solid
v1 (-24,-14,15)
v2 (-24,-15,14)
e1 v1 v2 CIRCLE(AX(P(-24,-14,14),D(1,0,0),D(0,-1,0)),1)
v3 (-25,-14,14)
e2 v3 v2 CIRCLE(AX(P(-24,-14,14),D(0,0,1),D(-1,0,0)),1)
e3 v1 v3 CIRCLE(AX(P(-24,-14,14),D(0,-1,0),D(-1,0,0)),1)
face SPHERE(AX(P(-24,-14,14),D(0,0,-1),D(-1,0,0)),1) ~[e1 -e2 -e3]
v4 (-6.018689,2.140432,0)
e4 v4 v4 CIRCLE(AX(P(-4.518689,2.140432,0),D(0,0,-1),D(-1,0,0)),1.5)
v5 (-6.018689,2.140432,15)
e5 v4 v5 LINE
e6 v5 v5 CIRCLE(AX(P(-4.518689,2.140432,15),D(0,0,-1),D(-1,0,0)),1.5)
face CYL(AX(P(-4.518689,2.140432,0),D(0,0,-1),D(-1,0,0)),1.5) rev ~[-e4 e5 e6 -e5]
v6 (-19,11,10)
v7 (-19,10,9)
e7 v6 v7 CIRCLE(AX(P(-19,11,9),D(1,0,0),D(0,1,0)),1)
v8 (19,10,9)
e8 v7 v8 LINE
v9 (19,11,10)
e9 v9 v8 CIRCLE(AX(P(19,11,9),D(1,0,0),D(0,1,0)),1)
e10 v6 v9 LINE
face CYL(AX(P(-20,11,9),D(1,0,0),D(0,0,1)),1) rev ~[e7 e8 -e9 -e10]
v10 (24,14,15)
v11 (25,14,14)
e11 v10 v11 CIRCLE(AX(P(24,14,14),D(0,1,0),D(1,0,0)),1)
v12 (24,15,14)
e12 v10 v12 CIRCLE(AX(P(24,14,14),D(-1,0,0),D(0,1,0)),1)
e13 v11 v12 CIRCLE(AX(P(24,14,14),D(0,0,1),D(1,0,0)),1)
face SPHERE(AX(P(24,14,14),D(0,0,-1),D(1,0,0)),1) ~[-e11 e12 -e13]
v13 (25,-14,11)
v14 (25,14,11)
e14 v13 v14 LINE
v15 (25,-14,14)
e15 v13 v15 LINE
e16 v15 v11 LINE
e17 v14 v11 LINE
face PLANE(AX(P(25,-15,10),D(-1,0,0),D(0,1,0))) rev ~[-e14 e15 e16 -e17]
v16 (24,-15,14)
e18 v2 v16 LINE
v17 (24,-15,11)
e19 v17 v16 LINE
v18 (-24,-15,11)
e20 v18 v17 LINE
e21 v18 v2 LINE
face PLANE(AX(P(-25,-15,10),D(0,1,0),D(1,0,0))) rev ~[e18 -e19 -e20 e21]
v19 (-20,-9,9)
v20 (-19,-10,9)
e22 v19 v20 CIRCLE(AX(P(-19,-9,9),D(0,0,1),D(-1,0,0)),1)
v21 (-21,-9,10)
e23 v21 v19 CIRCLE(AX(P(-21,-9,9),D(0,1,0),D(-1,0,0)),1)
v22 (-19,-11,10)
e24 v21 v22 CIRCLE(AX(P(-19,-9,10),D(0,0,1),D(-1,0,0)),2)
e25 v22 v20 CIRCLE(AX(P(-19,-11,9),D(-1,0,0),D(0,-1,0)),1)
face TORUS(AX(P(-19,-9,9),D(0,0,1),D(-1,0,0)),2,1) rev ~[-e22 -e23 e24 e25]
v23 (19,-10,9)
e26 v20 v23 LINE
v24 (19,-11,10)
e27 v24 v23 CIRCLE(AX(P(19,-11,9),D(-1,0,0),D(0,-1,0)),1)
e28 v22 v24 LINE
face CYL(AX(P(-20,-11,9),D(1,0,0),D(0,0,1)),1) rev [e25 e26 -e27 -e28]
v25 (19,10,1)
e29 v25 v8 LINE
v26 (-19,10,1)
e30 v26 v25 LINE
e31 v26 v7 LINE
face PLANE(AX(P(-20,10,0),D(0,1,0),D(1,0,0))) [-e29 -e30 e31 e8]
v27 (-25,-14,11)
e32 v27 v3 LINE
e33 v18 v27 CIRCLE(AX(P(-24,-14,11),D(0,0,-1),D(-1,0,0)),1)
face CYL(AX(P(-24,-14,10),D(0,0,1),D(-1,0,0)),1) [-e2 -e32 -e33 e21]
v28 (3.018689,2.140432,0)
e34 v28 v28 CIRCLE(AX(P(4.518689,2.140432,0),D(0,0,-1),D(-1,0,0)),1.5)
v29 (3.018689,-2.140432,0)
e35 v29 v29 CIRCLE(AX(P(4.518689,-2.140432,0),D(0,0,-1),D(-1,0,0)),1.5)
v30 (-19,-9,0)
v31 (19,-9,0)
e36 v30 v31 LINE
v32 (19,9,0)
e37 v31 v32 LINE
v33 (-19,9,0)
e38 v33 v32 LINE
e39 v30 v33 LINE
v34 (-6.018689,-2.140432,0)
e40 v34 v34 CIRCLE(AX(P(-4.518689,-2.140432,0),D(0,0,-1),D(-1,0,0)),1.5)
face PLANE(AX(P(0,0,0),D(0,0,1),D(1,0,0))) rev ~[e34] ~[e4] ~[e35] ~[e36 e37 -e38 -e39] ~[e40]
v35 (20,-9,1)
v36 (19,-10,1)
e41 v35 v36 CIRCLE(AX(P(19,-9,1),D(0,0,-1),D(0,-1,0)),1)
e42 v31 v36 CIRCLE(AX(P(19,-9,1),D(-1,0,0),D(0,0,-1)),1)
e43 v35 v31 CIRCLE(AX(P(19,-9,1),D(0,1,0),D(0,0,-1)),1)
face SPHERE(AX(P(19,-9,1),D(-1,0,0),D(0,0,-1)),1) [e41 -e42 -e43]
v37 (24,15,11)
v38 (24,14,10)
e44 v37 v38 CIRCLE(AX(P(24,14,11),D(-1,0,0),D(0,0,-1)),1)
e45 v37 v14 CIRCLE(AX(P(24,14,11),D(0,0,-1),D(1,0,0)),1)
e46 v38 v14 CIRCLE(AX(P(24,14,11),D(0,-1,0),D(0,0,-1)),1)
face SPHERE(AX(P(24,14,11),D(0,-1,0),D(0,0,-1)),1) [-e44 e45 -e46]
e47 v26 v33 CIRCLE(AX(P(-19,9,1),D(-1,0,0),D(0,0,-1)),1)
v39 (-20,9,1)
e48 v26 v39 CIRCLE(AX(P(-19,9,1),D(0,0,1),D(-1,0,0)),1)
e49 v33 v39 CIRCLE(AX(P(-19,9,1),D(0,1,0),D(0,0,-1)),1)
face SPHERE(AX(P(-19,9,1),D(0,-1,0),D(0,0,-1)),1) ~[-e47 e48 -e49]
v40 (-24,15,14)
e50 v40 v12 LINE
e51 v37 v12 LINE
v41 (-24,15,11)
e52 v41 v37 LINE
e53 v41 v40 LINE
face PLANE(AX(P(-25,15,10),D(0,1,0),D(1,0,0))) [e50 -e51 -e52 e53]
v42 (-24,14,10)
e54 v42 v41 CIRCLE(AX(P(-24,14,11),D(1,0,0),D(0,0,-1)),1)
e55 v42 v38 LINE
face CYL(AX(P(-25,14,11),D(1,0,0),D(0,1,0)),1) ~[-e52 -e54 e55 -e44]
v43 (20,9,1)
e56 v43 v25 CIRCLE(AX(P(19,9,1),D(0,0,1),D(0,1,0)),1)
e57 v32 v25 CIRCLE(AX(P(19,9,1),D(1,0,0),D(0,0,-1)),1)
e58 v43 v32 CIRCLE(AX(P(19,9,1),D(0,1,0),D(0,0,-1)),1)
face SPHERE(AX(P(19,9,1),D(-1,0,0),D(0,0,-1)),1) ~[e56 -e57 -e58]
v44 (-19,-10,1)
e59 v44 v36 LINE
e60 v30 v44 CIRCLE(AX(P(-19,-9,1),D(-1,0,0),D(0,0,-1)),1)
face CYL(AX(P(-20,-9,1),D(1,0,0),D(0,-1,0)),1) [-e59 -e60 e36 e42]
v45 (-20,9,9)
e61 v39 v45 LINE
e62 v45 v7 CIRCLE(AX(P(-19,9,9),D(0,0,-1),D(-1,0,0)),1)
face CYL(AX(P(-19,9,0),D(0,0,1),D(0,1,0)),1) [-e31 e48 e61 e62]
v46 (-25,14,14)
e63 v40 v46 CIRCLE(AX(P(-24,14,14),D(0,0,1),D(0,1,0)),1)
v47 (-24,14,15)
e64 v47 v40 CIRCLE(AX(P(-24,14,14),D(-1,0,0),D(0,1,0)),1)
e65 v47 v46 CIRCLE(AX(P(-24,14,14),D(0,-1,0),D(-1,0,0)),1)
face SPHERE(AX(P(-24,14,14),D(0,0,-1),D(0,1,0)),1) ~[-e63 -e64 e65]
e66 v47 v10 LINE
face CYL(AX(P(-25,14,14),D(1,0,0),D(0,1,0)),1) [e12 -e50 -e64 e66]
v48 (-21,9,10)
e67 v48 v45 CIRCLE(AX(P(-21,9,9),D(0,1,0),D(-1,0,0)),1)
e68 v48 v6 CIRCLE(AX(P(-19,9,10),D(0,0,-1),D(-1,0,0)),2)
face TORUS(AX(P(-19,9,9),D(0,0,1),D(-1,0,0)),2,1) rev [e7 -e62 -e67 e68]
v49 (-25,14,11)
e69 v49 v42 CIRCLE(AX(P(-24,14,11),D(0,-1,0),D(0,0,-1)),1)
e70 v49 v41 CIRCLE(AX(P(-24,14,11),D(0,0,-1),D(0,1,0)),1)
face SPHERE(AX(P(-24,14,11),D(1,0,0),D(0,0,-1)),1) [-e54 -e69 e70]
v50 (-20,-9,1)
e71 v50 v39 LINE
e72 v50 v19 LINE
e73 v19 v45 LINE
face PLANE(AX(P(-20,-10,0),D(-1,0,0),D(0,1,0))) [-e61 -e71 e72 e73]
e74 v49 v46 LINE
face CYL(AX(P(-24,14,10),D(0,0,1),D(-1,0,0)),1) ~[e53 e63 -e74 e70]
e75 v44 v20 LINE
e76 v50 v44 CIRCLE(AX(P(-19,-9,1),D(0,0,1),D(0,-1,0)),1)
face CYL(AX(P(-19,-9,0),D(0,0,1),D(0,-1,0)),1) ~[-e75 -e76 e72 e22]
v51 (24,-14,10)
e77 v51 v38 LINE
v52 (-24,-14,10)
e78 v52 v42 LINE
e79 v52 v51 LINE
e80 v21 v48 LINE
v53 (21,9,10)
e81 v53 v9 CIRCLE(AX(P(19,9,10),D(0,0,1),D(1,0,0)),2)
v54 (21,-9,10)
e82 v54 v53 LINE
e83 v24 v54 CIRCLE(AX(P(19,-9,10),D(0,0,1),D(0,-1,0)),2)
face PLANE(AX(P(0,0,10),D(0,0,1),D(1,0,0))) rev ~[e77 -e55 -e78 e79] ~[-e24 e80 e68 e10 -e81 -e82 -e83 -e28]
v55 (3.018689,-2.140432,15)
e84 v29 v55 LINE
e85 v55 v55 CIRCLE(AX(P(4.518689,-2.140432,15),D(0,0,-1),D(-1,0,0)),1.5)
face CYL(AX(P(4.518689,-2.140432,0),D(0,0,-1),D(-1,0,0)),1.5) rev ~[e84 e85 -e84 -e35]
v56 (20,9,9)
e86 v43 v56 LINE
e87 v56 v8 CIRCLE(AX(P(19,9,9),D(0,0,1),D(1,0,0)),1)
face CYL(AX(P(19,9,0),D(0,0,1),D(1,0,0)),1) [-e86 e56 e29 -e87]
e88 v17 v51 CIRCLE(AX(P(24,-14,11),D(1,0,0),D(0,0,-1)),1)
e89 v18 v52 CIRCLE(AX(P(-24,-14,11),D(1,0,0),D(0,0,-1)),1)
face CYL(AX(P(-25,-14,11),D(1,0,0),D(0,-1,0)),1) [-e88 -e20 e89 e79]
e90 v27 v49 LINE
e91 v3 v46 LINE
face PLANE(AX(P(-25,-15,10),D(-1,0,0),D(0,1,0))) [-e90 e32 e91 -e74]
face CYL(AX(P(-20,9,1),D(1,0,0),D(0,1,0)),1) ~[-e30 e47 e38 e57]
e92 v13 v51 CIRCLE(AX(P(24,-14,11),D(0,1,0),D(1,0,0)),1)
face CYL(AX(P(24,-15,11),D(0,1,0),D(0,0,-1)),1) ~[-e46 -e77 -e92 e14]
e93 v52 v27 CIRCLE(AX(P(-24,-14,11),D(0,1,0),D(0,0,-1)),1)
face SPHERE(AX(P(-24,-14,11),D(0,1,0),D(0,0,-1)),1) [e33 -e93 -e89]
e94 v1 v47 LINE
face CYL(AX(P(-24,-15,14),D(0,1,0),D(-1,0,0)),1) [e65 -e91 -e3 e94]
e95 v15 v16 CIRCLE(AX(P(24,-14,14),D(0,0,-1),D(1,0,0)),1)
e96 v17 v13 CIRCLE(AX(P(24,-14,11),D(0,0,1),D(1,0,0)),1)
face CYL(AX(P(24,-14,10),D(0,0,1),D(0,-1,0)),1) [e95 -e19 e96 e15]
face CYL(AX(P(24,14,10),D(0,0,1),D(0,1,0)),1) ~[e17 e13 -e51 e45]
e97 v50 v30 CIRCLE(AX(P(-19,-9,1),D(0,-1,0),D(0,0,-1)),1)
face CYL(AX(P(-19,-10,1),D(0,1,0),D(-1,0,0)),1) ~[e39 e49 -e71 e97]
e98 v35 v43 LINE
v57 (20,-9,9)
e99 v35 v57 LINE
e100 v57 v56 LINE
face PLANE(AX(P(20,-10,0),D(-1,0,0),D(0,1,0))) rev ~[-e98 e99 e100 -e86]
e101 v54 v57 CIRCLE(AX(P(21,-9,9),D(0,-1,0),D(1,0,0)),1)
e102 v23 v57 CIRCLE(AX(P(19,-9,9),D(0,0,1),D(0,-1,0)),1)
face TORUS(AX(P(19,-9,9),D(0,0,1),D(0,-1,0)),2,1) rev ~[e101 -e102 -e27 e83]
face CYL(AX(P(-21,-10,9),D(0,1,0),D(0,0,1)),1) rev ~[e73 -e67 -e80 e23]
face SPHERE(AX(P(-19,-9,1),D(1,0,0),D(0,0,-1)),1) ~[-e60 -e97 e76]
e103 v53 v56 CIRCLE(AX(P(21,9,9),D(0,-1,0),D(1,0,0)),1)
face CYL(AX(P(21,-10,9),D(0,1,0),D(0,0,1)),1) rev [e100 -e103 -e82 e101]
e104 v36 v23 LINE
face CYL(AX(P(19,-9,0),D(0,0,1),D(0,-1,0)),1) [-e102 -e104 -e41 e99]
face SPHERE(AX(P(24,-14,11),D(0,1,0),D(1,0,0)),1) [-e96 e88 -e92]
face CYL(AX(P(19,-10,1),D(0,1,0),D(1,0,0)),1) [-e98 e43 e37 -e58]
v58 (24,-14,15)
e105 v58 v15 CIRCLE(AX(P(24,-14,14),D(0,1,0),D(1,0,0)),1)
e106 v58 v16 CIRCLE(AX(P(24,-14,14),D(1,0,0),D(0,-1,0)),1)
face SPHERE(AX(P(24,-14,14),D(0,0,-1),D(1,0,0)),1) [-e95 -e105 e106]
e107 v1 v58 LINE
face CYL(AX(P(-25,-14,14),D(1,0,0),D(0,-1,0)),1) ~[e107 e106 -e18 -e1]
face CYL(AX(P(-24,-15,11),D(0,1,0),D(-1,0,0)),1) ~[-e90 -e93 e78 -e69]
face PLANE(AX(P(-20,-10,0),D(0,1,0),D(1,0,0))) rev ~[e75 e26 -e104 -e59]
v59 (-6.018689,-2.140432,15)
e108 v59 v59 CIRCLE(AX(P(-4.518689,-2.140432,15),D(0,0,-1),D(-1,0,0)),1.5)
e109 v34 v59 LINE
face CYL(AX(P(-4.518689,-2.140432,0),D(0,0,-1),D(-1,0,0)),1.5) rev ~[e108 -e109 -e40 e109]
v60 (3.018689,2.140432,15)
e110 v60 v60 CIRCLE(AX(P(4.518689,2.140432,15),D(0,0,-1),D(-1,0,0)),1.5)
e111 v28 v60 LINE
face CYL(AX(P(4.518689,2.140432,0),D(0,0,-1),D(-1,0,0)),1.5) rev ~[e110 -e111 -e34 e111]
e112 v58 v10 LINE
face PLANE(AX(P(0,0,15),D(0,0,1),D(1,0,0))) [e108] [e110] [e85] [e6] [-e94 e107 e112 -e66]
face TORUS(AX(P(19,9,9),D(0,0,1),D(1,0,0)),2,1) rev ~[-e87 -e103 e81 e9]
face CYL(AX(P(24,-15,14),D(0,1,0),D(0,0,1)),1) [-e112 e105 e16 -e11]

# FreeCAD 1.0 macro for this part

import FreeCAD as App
import Part
import Sketcher

V = App.Vector
Q = App.Units.Quantity


def add_polygon(sketch, points):
    """Adds a closed chain of lines whose ends are joined by coincident constraints."""
    first, n = sketch.GeometryCount, len(points)
    for a, b in zip(points, points[1:] + points[:1]):
        sketch.addGeometry(Part.LineSegment(App.Vector(*a, 0), App.Vector(*b, 0)), False)
    for i in range(n):
        sketch.addConstraint(Sketcher.Constraint("Coincident", first + i, 2, first + (i + 1) % n, 1))

doc = App.newDocument("Part")
body = doc.addObject("PartDesign::Body", "Body")

sketch1 = body.newObject("Sketcher::SketchObject", "Sketch")
sketch1.AttachmentSupport = (doc.getObject("XY_Plane"), [""])
sketch1.MapMode = "FlatFace"
add_polygon(sketch1, [(-20, 10), (-20, -10), (20, -10), (20, 10)])
sketch1.addConstraint([
    Sketcher.Constraint("Vertical", 0),
    Sketcher.Constraint("Horizontal", 1),
    Sketcher.Constraint("Vertical", 2),
    Sketcher.Constraint("Horizontal", 3),
    Sketcher.Constraint("Symmetric", 0, 2, 2, 2, -1, 1),
    Sketcher.Constraint("DistanceX", 1, 1, 1, 2, Q("40 mm")),
    Sketcher.Constraint("DistanceY", 0, 2, 0, 1, Q("20 mm")),
])
pad1 = body.newObject("PartDesign::Pad", "Pad")
pad1.Profile = sketch1
pad1.Length = 10

sketch2 = body.newObject("Sketcher::SketchObject", "Sketch001")
sketch2.AttachmentSupport = (doc.getObject("XY_Plane"), [""])
sketch2.MapMode = "FlatFace"
sketch2.AttachmentOffset = App.Placement(V(0, 0, 10), App.Rotation())
add_polygon(sketch2, [(-25, 15), (-25, -15), (25, -15), (25, 15)])
sketch2.addConstraint([
    Sketcher.Constraint("Vertical", 0),
    Sketcher.Constraint("Horizontal", 1),
    Sketcher.Constraint("Vertical", 2),
    Sketcher.Constraint("Horizontal", 3),
    Sketcher.Constraint("Symmetric", 0, 2, 2, 2, -1, 1),
    Sketcher.Constraint("DistanceX", 1, 1, 1, 2, Q("50 mm")),
    Sketcher.Constraint("DistanceY", 0, 2, 0, 1, Q("30 mm")),
])
pad2 = body.newObject("PartDesign::Pad", "Pad001")
pad2.Profile = sketch2
pad2.Length = 5
doc.recompute()

fillet = body.newObject("PartDesign::Fillet", "Fillet")
fillet.Base = (pad2, ["Edge1"])
fillet.UseAllEdges = True
fillet.Radius = 1

sketch3 = body.newObject("Sketcher::SketchObject", "Sketch002")
sketch3.AttachmentSupport = (doc.getObject("XY_Plane"), [""])
sketch3.MapMode = "FlatFace"
sketch3.addGeometry([
    Part.Circle(V(4.5, -2.1, 0), V(0, 0, 1), 1.5),
    Part.Circle(V(-4.5, 2.1, 0), V(0, 0, 1), 1.5),
    Part.Circle(V(4.5, 2.1, 0), V(0, 0, 1), 1.5),
    Part.Circle(V(-4.5, -2.1, 0), V(0, 0, 1), 1.5),
], False)
sketch3.addConstraint([
    Sketcher.Constraint("Equal", 0, 1),
    Sketcher.Constraint("Equal", 1, 2),
    Sketcher.Constraint("Equal", 2, 3),
    Sketcher.Constraint("Symmetric", 0, 3, 1, 3, -1, 1),
    Sketcher.Constraint("Symmetric", 2, 3, 3, 3, -1, 1),
    Sketcher.Constraint("Symmetric", 1, 3, 2, 3, -2),
    Sketcher.Constraint("Diameter", 0, Q("3 mm")),
    Sketcher.Constraint("DistanceX", -1, 1, 0, 3, Q("4.518689 mm")),
    Sketcher.Constraint("DistanceY", 0, 3, -1, 1, Q("2.140432 mm")),
])
pocket1 = body.newObject("PartDesign::Pocket", "Pocket")
pocket1.Profile = sketch3
pocket1.Type = "ThroughAll"
pocket1.Reversed = True

doc.recompute()
